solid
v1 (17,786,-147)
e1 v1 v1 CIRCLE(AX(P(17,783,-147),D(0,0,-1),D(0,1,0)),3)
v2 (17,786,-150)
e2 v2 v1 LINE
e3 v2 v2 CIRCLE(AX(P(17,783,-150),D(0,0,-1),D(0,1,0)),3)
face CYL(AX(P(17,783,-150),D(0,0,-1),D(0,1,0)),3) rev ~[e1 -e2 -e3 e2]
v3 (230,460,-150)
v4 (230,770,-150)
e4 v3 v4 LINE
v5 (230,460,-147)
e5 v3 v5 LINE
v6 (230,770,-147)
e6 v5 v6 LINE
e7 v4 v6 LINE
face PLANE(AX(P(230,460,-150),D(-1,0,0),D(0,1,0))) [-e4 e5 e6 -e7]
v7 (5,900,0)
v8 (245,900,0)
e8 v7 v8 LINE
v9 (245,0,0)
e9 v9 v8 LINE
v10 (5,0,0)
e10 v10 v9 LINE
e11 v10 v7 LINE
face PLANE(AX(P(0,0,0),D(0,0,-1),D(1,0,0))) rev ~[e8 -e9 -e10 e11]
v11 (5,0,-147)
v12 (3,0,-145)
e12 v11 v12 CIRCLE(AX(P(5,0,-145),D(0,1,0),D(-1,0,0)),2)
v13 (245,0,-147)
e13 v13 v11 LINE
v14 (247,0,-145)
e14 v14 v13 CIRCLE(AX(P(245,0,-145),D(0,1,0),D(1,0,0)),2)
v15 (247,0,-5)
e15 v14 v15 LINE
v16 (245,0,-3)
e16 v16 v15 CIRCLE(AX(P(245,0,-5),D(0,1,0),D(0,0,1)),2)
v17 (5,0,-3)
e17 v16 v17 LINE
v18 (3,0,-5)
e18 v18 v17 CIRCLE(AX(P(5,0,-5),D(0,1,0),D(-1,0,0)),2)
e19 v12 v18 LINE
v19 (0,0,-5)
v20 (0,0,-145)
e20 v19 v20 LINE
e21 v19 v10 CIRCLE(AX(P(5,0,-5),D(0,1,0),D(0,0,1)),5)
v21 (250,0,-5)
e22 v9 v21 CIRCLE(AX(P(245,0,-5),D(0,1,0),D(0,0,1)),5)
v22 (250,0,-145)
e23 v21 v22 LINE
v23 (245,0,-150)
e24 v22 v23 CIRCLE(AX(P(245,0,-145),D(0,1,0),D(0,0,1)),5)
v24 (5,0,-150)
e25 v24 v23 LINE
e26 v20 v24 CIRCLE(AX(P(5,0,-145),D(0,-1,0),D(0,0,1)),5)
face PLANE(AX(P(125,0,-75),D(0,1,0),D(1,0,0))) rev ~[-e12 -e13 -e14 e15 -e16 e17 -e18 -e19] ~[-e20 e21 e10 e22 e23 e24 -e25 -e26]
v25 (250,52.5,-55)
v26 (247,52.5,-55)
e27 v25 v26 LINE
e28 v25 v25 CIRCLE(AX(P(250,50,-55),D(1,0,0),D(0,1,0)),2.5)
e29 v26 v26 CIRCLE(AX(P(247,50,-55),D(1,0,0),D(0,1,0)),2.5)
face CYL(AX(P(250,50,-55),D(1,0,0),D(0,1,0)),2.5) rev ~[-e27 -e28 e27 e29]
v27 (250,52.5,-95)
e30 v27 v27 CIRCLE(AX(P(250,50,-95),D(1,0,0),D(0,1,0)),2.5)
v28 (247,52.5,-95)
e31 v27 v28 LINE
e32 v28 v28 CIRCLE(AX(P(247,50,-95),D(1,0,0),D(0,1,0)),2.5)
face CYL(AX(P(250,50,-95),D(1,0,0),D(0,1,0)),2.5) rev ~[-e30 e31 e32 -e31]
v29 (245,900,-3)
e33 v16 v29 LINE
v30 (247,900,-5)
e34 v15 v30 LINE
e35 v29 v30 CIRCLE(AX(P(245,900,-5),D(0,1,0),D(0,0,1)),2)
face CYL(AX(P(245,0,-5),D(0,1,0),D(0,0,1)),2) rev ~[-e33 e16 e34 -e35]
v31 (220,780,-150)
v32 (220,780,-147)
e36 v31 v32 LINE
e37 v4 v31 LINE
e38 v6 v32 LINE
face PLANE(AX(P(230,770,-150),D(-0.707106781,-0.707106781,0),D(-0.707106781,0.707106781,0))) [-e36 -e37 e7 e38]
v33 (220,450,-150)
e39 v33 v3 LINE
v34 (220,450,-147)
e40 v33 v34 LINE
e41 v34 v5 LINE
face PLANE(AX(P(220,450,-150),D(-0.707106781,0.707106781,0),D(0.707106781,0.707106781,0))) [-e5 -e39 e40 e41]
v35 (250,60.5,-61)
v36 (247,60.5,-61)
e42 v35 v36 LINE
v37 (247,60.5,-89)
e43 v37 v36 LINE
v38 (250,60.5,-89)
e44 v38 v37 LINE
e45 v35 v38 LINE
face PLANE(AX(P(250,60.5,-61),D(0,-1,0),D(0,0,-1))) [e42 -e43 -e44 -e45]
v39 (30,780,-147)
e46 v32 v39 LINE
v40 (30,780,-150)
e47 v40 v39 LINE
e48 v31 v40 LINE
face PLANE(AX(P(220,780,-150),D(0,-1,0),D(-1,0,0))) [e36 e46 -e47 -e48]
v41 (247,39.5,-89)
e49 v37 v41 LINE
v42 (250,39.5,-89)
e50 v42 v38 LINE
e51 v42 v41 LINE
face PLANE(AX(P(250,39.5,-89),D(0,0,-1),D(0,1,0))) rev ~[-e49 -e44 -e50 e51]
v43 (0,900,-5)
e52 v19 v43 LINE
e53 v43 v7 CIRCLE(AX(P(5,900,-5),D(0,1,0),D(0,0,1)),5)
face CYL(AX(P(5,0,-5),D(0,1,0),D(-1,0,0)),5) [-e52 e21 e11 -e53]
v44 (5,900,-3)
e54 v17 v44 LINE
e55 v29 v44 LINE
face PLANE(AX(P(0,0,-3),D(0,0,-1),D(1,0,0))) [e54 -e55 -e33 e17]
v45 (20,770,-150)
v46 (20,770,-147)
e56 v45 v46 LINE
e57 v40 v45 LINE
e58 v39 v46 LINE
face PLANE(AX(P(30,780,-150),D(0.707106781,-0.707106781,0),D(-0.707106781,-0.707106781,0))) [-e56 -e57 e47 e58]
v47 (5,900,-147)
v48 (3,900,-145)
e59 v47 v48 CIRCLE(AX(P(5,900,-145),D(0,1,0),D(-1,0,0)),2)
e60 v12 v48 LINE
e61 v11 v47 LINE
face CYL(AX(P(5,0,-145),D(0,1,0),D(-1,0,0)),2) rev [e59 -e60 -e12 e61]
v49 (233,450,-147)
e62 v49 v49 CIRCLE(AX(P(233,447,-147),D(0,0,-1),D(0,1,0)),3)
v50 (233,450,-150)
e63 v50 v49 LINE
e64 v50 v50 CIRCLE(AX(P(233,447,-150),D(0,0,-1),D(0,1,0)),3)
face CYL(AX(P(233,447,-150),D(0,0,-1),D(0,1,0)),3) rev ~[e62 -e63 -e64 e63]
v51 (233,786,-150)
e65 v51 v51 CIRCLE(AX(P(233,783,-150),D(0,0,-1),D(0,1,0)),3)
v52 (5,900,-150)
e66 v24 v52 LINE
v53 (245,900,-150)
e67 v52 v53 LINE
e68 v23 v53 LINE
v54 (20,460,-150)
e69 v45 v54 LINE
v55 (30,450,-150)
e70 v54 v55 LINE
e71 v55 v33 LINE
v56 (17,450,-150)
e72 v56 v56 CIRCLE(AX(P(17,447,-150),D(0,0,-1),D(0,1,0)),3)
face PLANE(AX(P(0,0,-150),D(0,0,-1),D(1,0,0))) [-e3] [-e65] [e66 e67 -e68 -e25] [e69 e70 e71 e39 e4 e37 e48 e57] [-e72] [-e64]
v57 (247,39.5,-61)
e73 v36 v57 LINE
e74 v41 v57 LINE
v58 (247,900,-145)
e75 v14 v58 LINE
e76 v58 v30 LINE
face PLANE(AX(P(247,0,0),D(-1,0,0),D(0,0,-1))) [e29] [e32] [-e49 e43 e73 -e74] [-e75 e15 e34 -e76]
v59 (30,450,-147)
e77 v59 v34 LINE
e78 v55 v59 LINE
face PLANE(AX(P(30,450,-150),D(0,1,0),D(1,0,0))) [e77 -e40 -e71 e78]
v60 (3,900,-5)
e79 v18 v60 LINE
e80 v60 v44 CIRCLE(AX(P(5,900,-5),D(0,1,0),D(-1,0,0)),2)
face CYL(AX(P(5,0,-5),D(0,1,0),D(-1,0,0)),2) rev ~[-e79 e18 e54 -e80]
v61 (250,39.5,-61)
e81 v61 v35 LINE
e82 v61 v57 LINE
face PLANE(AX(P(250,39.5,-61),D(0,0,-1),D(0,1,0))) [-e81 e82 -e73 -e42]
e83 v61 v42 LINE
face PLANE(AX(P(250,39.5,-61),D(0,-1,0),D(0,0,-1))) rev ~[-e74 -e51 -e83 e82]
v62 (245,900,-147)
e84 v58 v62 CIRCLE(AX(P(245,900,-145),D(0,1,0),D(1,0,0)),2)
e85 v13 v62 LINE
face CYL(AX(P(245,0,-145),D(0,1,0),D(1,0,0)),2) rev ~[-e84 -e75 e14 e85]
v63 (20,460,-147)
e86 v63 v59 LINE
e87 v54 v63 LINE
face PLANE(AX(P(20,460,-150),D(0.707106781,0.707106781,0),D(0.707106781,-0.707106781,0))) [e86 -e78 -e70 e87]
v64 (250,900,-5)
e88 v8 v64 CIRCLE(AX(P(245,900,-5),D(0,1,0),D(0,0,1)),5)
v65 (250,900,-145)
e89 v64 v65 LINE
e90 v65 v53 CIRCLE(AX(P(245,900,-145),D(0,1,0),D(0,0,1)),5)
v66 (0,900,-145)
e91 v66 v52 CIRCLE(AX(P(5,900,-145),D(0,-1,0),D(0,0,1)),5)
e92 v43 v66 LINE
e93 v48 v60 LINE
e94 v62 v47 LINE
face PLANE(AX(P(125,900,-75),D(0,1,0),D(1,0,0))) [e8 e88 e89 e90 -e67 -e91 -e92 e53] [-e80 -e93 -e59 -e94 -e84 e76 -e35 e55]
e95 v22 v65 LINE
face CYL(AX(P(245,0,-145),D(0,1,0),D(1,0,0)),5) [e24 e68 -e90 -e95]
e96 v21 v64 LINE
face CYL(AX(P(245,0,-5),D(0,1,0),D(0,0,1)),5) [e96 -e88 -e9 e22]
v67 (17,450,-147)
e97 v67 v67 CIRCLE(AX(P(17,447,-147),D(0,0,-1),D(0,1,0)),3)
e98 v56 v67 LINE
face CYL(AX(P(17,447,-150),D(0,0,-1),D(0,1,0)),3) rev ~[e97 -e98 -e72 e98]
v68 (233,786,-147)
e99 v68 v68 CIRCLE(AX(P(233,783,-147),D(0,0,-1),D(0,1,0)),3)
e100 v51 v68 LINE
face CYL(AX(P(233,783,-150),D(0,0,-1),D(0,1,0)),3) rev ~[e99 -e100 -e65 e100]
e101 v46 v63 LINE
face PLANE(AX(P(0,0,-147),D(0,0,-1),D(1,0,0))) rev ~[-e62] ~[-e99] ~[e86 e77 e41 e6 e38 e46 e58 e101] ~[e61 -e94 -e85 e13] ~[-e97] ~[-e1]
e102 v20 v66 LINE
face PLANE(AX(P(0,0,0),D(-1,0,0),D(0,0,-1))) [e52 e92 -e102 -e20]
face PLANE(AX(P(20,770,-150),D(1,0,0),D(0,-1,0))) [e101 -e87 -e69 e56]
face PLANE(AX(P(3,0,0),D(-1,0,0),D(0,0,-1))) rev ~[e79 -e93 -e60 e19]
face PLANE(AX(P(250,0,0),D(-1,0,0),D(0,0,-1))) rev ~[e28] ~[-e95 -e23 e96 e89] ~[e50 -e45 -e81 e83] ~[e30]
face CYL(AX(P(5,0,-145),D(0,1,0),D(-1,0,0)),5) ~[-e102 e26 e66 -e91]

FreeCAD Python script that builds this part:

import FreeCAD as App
import Part
import Sketcher
from FreeCAD import Vector
Q = App.Units.Quantity


def edges_at(feature, points):
    """Names of the edges that pass closest to the given points."""
    edges = feature.Shape.Edges
    near = lambda p: min(range(len(edges)), key=lambda i: edges[i].distToShape(Part.Vertex(*p))[0])
    return sorted({f"Edge{near(p) + 1}" for p in points})


def faces_at(feature, points):
    """Names of the faces that lie closest to the given points."""
    faces = feature.Shape.Faces
    near = lambda p: min(range(len(faces)), key=lambda i: faces[i].distToShape(Part.Vertex(*p))[0])
    return sorted({f"Face{near(p) + 1}" for p in points})


def add_polygon(sketch, points):
    """Adds a closed chain of lines whose ends are joined by coincident constraints."""
    first, n = sketch.GeometryCount, len(points)
    for a, b in zip(points, points[1:] + points[:1]):
        sketch.addGeometry(Part.LineSegment(App.Vector(*a, 0), App.Vector(*b, 0)), False)
    for i in range(n):
        sketch.addConstraint(Sketcher.Constraint("Coincident", first + i, 2, first + (i + 1) % n, 1))

doc = App.newDocument("Part")
body = doc.addObject("PartDesign::Body", "Body")

# Sketch on XZ plane
sketch1 = body.newObject("Sketcher::SketchObject", "Sketch")
sketch1.AttachmentSupport = (doc.getObject("XZ_Plane"), [""])
sketch1.MapMode = "FlatFace"
add_polygon(sketch1, [(0, -150), (0, 0), (250, 0), (250, -150)])  # lines 0-3
sketch1.addConstraint(Sketcher.Constraint("Vertical", 0))
sketch1.addConstraint(Sketcher.Constraint("Horizontal", 1))
sketch1.addConstraint(Sketcher.Constraint("Vertical", 2))
sketch1.addConstraint(Sketcher.Constraint("Horizontal", 3))
sketch1.addConstraint(Sketcher.Constraint("Coincident", 0, 2, -1, 1))
sketch1.addConstraint(Sketcher.Constraint("DistanceX", 1, 1, 1, 2, Q("250 mm")))
sketch1.addConstraint(Sketcher.Constraint("DistanceY", 0, 1, 0, 2, Q("150 mm")))
pad1 = body.newObject("PartDesign::Pad", "Pad")
pad1.Profile = sketch1
pad1.Length = 900
pad1.Reversed = True
doc.recompute()

fillet = body.newObject("PartDesign::Fillet", "Fillet")
fillet.Base = (pad1, edges_at(pad1, [
    (0, 450, 0),
    (250, 450, 0),
    (250, 450, -150),
    (0, 450, -150),
]))
fillet.Radius = 5
doc.recompute()

thickness = body.newObject("PartDesign::Thickness", "Thickness")
thickness.Base = (fillet, faces_at(fillet, [(125, 0, -75), (125, 900, -75)]))
thickness.Value = 3
thickness.Reversed = True
thickness.Join = "Intersection"

# Sketch on XY plane
sketch2 = body.newObject("Sketcher::SketchObject", "Sketch001")
sketch2.AttachmentSupport = (doc.getObject("XY_Plane"), [""])
sketch2.MapMode = "FlatFace"
sketch2.AttachmentOffset = App.Placement(Vector(0, 0, -150), App.Rotation())
add_polygon(sketch2, [(220, 780), (230, 770), (230, 460), (220, 450), (30, 450), (20, 460), (20, 770), (30, 780)])  # lines 0-7
sketch2.addConstraint(Sketcher.Constraint("Vertical", 1))
sketch2.addConstraint(Sketcher.Constraint("Horizontal", 3))
sketch2.addConstraint(Sketcher.Constraint("Vertical", 5))
sketch2.addConstraint(Sketcher.Constraint("Horizontal", 7))
sketch2.addConstraint(Sketcher.Constraint("Perpendicular", 0, 2))
sketch2.addConstraint(Sketcher.Constraint("Perpendicular", 2, 4))
sketch2.addConstraint(Sketcher.Constraint("Perpendicular", 4, 6))
sketch2.addConstraint(Sketcher.Constraint("Horizontal", 1, 2, 4, 2))
sketch2.addConstraint(Sketcher.Constraint("Horizontal", 0, 2, 5, 2))
sketch2.addConstraint(Sketcher.Constraint("Vertical", 3, 2, 6, 2))
sketch2.addConstraint(Sketcher.Constraint("Vertical", 2, 2, 7, 2))
sketch2.addConstraint(Sketcher.Constraint("DistanceX", 3, 2, 3, 1, Q("190 mm")))
sketch2.addConstraint(Sketcher.Constraint("DistanceY", 1, 2, 1, 1, Q("310 mm")))
sketch2.addConstraint(Sketcher.Constraint("DistanceX", -1, 1, 0, 2, Q("230 mm")))
sketch2.addConstraint(Sketcher.Constraint("DistanceY", -1, 1, 0, 2, Q("770 mm")))
sketch2.addConstraint(Sketcher.Constraint("DistanceX", -1, 1, 2, 2, Q("220 mm")))
pocket1 = body.newObject("PartDesign::Pocket", "Pocket")
pocket1.Profile = sketch2
pocket1.Length = 10
pocket1.Reversed = True

# Sketch on XY plane
sketch3 = body.newObject("Sketcher::SketchObject", "Sketch002")
sketch3.AttachmentSupport = (doc.getObject("XY_Plane"), [""])
sketch3.MapMode = "FlatFace"
sketch3.AttachmentOffset = App.Placement(Vector(0, 0, -150), App.Rotation())
sketch3.addGeometry(Part.Circle(Vector(17, 783, 0), Vector(0, 0, 1), 3), False)
sketch3.addGeometry(Part.Circle(Vector(17, 447, 0), Vector(0, 0, 1), 3), False)
sketch3.addGeometry(Part.Circle(Vector(233, 783, 0), Vector(0, 0, 1), 3), False)
sketch3.addGeometry(Part.Circle(Vector(233, 447, 0), Vector(0, 0, 1), 3), False)
sketch3.addConstraint(Sketcher.Constraint("Equal", 0, 1))
sketch3.addConstraint(Sketcher.Constraint("Equal", 1, 2))
sketch3.addConstraint(Sketcher.Constraint("Equal", 2, 3))
sketch3.addConstraint(Sketcher.Constraint("Horizontal", 0, 3, 2, 3))
sketch3.addConstraint(Sketcher.Constraint("Horizontal", 1, 3, 3, 3))
sketch3.addConstraint(Sketcher.Constraint("Vertical", 0, 3, 1, 3))
sketch3.addConstraint(Sketcher.Constraint("Vertical", 2, 3, 3, 3))
sketch3.addConstraint(Sketcher.Constraint("Diameter", 0, Q("6 mm")))
sketch3.addConstraint(Sketcher.Constraint("DistanceX", -1, 1, 0, 3, Q("17 mm")))
sketch3.addConstraint(Sketcher.Constraint("DistanceY", -1, 1, 0, 3, Q("783 mm")))
sketch3.addConstraint(Sketcher.Constraint("DistanceY", -1, 1, 1, 3, Q("447 mm")))
sketch3.addConstraint(Sketcher.Constraint("DistanceX", -1, 1, 2, 3, Q("233 mm")))
pocket2 = body.newObject("PartDesign::Pocket", "Pocket001")
pocket2.Profile = sketch3
pocket2.Length = 10
pocket2.Reversed = True

# Sketch on YZ plane
sketch4 = body.newObject("Sketcher::SketchObject", "Sketch003")
sketch4.AttachmentSupport = (doc.getObject("YZ_Plane"), [""])
sketch4.MapMode = "FlatFace"
sketch4.AttachmentOffset = App.Placement(Vector(0, 0, 250), App.Rotation())
sketch4.addGeometry(Part.Circle(Vector(50, -95, 0), Vector(0, 0, 1), 2.5), False)  # 0
sketch4.addGeometry(Part.Circle(Vector(50, -55, 0), Vector(0, 0, 1), 2.5), False)  # 1
add_polygon(sketch4, [(60.5, -61), (39.5, -61), (39.5, -89), (60.5, -89)])  # lines 2-5
sketch4.addConstraint(Sketcher.Constraint("Horizontal", 2))
sketch4.addConstraint(Sketcher.Constraint("Vertical", 3))
sketch4.addConstraint(Sketcher.Constraint("Horizontal", 4))
sketch4.addConstraint(Sketcher.Constraint("Vertical", 5))
sketch4.addConstraint(Sketcher.Constraint("Equal", 0, 1))
sketch4.addConstraint(Sketcher.Constraint("Vertical", 0, 3, 1, 3))
sketch4.addConstraint(Sketcher.Constraint("Diameter", 0, Q("5 mm")))
sketch4.addConstraint(Sketcher.Constraint("DistanceX", 2, 2, 2, 1, Q("21 mm")))
sketch4.addConstraint(Sketcher.Constraint("DistanceY", 3, 2, 3, 1, Q("28 mm")))
sketch4.addConstraint(Sketcher.Constraint("DistanceX", -1, 1, 0, 3, Q("50 mm")))
sketch4.addConstraint(Sketcher.Constraint("DistanceY", 0, 3, -1, 1, Q("95 mm")))
sketch4.addConstraint(Sketcher.Constraint("DistanceY", 1, 3, -1, 1, Q("55 mm")))
sketch4.addConstraint(Sketcher.Constraint("DistanceY", 2, 2, -1, 1, Q("61 mm")))
sketch4.addConstraint(Sketcher.Constraint("DistanceX", -1, 1, 2, 2, Q("39.5 mm")))
pocket3 = body.newObject("PartDesign::Pocket", "Pocket002")
pocket3.Profile = sketch4
pocket3.Length = 8

doc.recompute()
